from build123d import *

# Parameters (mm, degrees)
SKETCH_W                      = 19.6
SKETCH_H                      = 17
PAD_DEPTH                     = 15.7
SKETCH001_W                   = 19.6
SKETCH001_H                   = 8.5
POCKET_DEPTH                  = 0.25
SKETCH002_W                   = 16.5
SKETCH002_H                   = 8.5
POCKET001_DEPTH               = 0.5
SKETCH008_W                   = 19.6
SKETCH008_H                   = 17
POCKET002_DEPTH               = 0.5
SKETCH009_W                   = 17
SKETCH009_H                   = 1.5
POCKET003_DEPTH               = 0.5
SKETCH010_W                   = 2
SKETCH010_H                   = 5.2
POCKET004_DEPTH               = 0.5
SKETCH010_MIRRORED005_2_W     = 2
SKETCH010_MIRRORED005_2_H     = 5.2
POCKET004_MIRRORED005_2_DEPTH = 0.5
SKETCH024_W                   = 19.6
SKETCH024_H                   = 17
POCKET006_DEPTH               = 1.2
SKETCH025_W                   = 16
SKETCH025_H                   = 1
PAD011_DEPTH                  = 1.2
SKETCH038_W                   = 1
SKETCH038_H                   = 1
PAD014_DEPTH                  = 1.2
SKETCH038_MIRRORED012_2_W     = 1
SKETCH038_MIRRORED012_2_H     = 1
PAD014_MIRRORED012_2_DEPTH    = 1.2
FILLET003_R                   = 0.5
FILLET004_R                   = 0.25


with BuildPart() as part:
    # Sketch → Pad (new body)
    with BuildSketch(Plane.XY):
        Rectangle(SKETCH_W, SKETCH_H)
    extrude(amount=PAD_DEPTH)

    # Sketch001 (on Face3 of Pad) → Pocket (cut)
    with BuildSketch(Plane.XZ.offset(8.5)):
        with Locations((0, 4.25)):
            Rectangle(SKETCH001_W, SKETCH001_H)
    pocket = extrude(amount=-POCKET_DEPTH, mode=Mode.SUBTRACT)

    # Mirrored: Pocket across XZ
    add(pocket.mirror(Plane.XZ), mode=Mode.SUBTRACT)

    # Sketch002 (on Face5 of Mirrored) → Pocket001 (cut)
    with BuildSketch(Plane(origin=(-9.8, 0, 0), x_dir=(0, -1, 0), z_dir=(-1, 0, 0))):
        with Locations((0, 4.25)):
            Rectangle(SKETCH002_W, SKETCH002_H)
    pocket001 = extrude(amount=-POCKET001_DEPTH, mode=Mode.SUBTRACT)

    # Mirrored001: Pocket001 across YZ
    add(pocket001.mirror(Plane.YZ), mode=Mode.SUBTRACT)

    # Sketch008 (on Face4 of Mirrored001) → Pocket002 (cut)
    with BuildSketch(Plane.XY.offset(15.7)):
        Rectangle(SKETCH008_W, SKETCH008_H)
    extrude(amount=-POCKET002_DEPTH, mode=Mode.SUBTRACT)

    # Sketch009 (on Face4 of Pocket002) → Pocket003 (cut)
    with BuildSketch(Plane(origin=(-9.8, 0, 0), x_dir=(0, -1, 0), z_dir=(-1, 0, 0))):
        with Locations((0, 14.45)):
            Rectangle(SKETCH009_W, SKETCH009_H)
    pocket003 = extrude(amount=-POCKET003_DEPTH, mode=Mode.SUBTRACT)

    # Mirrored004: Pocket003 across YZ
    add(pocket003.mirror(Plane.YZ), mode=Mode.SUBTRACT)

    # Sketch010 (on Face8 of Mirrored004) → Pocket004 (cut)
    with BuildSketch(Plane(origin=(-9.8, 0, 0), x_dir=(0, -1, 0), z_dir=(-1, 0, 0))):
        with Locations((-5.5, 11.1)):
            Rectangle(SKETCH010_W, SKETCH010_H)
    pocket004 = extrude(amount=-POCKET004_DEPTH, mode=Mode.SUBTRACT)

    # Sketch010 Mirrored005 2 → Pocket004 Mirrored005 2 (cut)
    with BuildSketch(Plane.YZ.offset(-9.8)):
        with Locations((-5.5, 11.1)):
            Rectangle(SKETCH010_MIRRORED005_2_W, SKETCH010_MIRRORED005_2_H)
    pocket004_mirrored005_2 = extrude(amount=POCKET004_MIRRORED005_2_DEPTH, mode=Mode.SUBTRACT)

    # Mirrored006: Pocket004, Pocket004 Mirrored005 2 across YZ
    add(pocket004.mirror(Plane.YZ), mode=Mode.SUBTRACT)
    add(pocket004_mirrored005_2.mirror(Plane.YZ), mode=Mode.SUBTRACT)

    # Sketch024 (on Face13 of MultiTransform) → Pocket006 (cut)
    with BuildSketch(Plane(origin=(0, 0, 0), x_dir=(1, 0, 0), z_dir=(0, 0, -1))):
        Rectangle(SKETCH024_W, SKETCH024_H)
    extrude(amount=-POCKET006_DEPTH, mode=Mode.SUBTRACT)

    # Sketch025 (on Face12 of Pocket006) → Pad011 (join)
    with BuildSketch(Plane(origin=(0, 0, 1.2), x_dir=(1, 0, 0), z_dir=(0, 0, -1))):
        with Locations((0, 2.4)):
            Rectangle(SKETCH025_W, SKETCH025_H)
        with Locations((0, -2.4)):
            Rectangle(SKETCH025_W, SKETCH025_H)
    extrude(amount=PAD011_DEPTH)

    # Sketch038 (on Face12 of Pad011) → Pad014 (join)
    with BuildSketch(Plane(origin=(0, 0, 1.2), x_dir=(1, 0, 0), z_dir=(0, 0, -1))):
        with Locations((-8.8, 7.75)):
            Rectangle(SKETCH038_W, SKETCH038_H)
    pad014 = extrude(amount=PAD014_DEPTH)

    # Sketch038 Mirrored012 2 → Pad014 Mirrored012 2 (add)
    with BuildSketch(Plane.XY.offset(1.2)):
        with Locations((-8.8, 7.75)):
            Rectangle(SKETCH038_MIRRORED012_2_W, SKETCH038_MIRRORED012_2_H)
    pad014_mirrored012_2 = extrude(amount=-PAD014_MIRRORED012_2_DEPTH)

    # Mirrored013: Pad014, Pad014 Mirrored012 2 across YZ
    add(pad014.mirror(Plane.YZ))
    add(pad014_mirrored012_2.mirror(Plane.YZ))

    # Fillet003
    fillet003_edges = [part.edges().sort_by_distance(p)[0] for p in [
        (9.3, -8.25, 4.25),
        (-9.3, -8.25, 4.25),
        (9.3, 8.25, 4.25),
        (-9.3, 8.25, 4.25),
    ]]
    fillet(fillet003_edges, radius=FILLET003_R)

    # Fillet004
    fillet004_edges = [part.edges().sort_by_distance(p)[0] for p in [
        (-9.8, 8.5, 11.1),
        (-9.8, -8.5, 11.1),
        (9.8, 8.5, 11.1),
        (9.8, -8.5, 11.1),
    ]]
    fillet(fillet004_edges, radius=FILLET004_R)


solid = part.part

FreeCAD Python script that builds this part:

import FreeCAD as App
import Part
import Sketcher
from FreeCAD import Vector
Q = App.Units.Quantity


def edges_at(feature, points):
    """Names of the edges that pass closest to the given points."""
    edges = feature.Shape.Edges
    near = lambda p: min(range(len(edges)), key=lambda i: edges[i].distToShape(Part.Vertex(*p))[0])
    return sorted({f"Edge{near(p) + 1}" for p in points})

doc = App.newDocument("Part")
params = doc.addObject("Spreadsheet::Sheet", "Params")
for row, (alias, value) in enumerate([
    ("sketch1_height", "17 mm"),
    ("sketch1_width", "19.6 mm"),
    ("pad1_length", "15.7 mm"),
    ("sketch2_width", "19.6 mm"),
    ("sketch2_height", "8.5 mm"),
    ("pocket1_length", "0.25 mm"),
    ("sketch3_width", "16.5 mm"),
    ("sketch3_height", "8.5 mm"),
    ("pocket2_length", "0.5 mm"),
    ("sketch4_height", "17 mm"),
    ("sketch4_width", "19.6 mm"),
    ("pocket3_length", "0.5 mm"),
    ("sketch5_width", "17 mm"),
    ("sketch5_height", "1.5 mm"),
    ("pocket4_length", "0.5 mm"),
    ("sketch6_width", "2 mm"),
    ("sketch6_height", "5.2 mm"),
    ("pocket5_length", "0.5 mm"),
    ("sketch7_width", "2 mm"),
    ("sketch7_height", "5.2 mm"),
    ("pocket6_length", "0.5 mm"),
    ("sketch8_height", "17 mm"),
    ("sketch8_width", "19.6 mm"),
    ("pocket7_length", "1.2 mm"),
    ("sketch9_width", "16 mm"),
    ("sketch9_height", "1 mm"),
    ("pad2_length", "1.2 mm"),
    ("sketch10_width", "1 mm"),
    ("pad3_length", "1.2 mm"),
    ("sketch11_width", "1 mm"),
    ("pad4_length", "1.2 mm"),
    ("fillet_radius", "0.5 mm"),
    ("fillet2_radius", "0.25 mm"),
], start=1):
    params.set(f"A{row}", alias)
    params.set(f"B{row}", "=" + value)
    params.setAlias(f"B{row}", alias)

body = doc.addObject("PartDesign::Body", "Body")

# Sketch on XY plane
sketch1 = body.newObject("Sketcher::SketchObject", "Sketch")
sketch1.AttachmentSupport = (doc.getObject("XY_Plane"), [""])
sketch1.MapMode = "FlatFace"
sketch1.addGeometry([
    Part.LineSegment(Vector(-10, 8, 0), Vector(-10, -8, 0)),
    Part.LineSegment(Vector(-10, -8, 0), Vector(10, -8, 0)),
    Part.LineSegment(Vector(10, -8, 0), Vector(10, 8, 0)),
    Part.LineSegment(Vector(10, 8, 0), Vector(-10, 8, 0)),
], False)
sketch1.addConstraint([
    Sketcher.Constraint("Coincident", 0, 2, 1, 1),
    Sketcher.Constraint("Coincident", 1, 2, 2, 1),
    Sketcher.Constraint("Coincident", 2, 2, 3, 1),
    Sketcher.Constraint("Coincident", 3, 2, 0, 1),
    Sketcher.Constraint("Vertical", 0),
    Sketcher.Constraint("Horizontal", 1),
    Sketcher.Constraint("Vertical", 2),
    Sketcher.Constraint("Horizontal", 3),
    Sketcher.Constraint("Symmetric", 0, 2, 2, 2, -1, 1),
    Sketcher.Constraint("DistanceY", 0, 2, 0, 1, Q("17 mm")),
    Sketcher.Constraint("DistanceX", 1, 1, 1, 2, Q("19.6 mm")),
])
sketch1.setExpression("Constraints[9]", "Params.sketch1_height")
sketch1.setExpression("Constraints[10]", "Params.sketch1_width")
pad1 = body.newObject("PartDesign::Pad", "Pad")
pad1.Profile = sketch1
pad1.setExpression("Length", "Params.pad1_length")

# Sketch on XZ plane
sketch2 = body.newObject("Sketcher::SketchObject", "Sketch001")
sketch2.AttachmentSupport = (doc.getObject("XZ_Plane"), [""])
sketch2.MapMode = "FlatFace"
sketch2.AttachmentOffset = App.Placement(Vector(0, 0, 8.5), App.Rotation())
sketch2.addGeometry([
    Part.LineSegment(Vector(-10, 8, 0), Vector(-10, 0, 0)),
    Part.LineSegment(Vector(-10, 0, 0), Vector(10, 0, 0)),
    Part.LineSegment(Vector(10, 0, 0), Vector(10, 8, 0)),
    Part.LineSegment(Vector(10, 8, 0), Vector(-10, 8, 0)),
], False)
sketch2.addConstraint([
    Sketcher.Constraint("Coincident", 0, 2, 1, 1),
    Sketcher.Constraint("Coincident", 1, 2, 2, 1),
    Sketcher.Constraint("Coincident", 2, 2, 3, 1),
    Sketcher.Constraint("Coincident", 3, 2, 0, 1),
    Sketcher.Constraint("Vertical", 0),
    Sketcher.Constraint("Horizontal", 1),
    Sketcher.Constraint("Vertical", 2),
    Sketcher.Constraint("Horizontal", 3),
    Sketcher.Constraint("Symmetric", 0, 2, 1, 2, -1, 1),
    Sketcher.Constraint("DistanceX", 1, 1, 1, 2, Q("19.6 mm")),
    Sketcher.Constraint("DistanceY", 0, 2, 0, 1, Q("8.5 mm")),
])
sketch2.setExpression("Constraints[9]", "Params.sketch2_width")
sketch2.setExpression("Constraints[10]", "Params.sketch2_height")
pocket1 = body.newObject("PartDesign::Pocket", "Pocket")
pocket1.Profile = sketch2
pocket1.setExpression("Length", "Params.pocket1_length")
doc.recompute()

mirrored = body.newObject("PartDesign::Mirrored", "Mirrored")
mirrored.Originals = [pocket1]
mirrored.MirrorPlane = (doc.getObject("XZ_Plane"), [""])
body.Tip = mirrored

# Sketch on YZ plane
sketch3 = body.newObject("Sketcher::SketchObject", "Sketch002")
sketch3.AttachmentSupport = (doc.getObject("YZ_Plane"), [""])
sketch3.MapMode = "FlatFace"
sketch3.AttachmentOffset = App.Placement(Vector(0, 0, -9.8), App.Rotation())
sketch3.addGeometry([
    Part.LineSegment(Vector(8, 8, 0), Vector(8, 0, 0)),
    Part.LineSegment(Vector(8, 0, 0), Vector(-8, 0, 0)),
    Part.LineSegment(Vector(-8, 0, 0), Vector(-8, 8, 0)),
    Part.LineSegment(Vector(-8, 8, 0), Vector(8, 8, 0)),
], False)
sketch3.addConstraint([
    Sketcher.Constraint("Coincident", 0, 2, 1, 1),
    Sketcher.Constraint("Coincident", 1, 2, 2, 1),
    Sketcher.Constraint("Coincident", 2, 2, 3, 1),
    Sketcher.Constraint("Coincident", 3, 2, 0, 1),
    Sketcher.Constraint("Vertical", 0),
    Sketcher.Constraint("Horizontal", 1),
    Sketcher.Constraint("Vertical", 2),
    Sketcher.Constraint("Horizontal", 3),
    Sketcher.Constraint("Symmetric", 0, 2, 1, 2, -1, 1),
    Sketcher.Constraint("DistanceX", 1, 2, 1, 1, Q("16.5 mm")),
    Sketcher.Constraint("DistanceY", 0, 2, 0, 1, Q("8.5 mm")),
])
sketch3.setExpression("Constraints[9]", "Params.sketch3_width")
sketch3.setExpression("Constraints[10]", "Params.sketch3_height")
pocket2 = body.newObject("PartDesign::Pocket", "Pocket001")
pocket2.Profile = sketch3
pocket2.setExpression("Length", "Params.pocket2_length")
pocket2.Reversed = True
doc.recompute()

mirrored2 = body.newObject("PartDesign::Mirrored", "Mirrored001")
mirrored2.Originals = [pocket2]
mirrored2.MirrorPlane = (doc.getObject("YZ_Plane"), [""])
body.Tip = mirrored2

# Sketch on XY plane
sketch4 = body.newObject("Sketcher::SketchObject", "Sketch003")
sketch4.AttachmentSupport = (doc.getObject("XY_Plane"), [""])
sketch4.MapMode = "FlatFace"
sketch4.AttachmentOffset = App.Placement(Vector(0, 0, 15.7), App.Rotation())
sketch4.addGeometry([
    Part.LineSegment(Vector(-10, 8, 0), Vector(-10, -8, 0)),
    Part.LineSegment(Vector(-10, -8, 0), Vector(10, -8, 0)),
    Part.LineSegment(Vector(10, -8, 0), Vector(10, 8, 0)),
    Part.LineSegment(Vector(10, 8, 0), Vector(-10, 8, 0)),
], False)
sketch4.addConstraint([
    Sketcher.Constraint("Coincident", 0, 2, 1, 1),
    Sketcher.Constraint("Coincident", 1, 2, 2, 1),
    Sketcher.Constraint("Coincident", 2, 2, 3, 1),
    Sketcher.Constraint("Coincident", 3, 2, 0, 1),
    Sketcher.Constraint("Vertical", 0),
    Sketcher.Constraint("Horizontal", 1),
    Sketcher.Constraint("Vertical", 2),
    Sketcher.Constraint("Horizontal", 3),
    Sketcher.Constraint("Symmetric", 0, 2, 2, 2, -1, 1),
    Sketcher.Constraint("DistanceY", 0, 2, 0, 1, Q("17 mm")),
    Sketcher.Constraint("DistanceX", 1, 1, 1, 2, Q("19.6 mm")),
])
sketch4.setExpression("Constraints[9]", "Params.sketch4_height")
sketch4.setExpression("Constraints[10]", "Params.sketch4_width")
pocket3 = body.newObject("PartDesign::Pocket", "Pocket002")
pocket3.Profile = sketch4
pocket3.setExpression("Length", "Params.pocket3_length")

# Sketch on YZ plane
sketch5 = body.newObject("Sketcher::SketchObject", "Sketch004")
sketch5.AttachmentSupport = (doc.getObject("YZ_Plane"), [""])
sketch5.MapMode = "FlatFace"
sketch5.AttachmentOffset = App.Placement(Vector(0, 0, -9.8), App.Rotation())
sketch5.addGeometry([
    Part.LineSegment(Vector(8.5, 15.2, 0), Vector(8.5, 13.7, 0)),
    Part.LineSegment(Vector(8.5, 13.7, 0), Vector(-8.5, 13.7, 0)),
    Part.LineSegment(Vector(-8.5, 13.7, 0), Vector(-8.5, 15.2, 0)),
    Part.LineSegment(Vector(-8.5, 15.2, 0), Vector(8.5, 15.2, 0)),
], False)
sketch5.addConstraint([
    Sketcher.Constraint("Coincident", 0, 2, 1, 1),
    Sketcher.Constraint("Coincident", 1, 2, 2, 1),
    Sketcher.Constraint("Coincident", 2, 2, 3, 1),
    Sketcher.Constraint("Coincident", 3, 2, 0, 1),
    Sketcher.Constraint("Vertical", 0),
    Sketcher.Constraint("Horizontal", 1),
    Sketcher.Constraint("Vertical", 2),
    Sketcher.Constraint("Horizontal", 3),
    Sketcher.Constraint("DistanceX", 1, 2, 1, 1, Q("17 mm")),
    Sketcher.Constraint("DistanceY", 0, 2, 0, 1, Q("1.5 mm")),
    Sketcher.Constraint("DistanceX", -1, 1, 0, 2, Q("8.5 mm")),
    Sketcher.Constraint("DistanceY", -1, 1, 0, 2, Q("13.7 mm")),
])
sketch5.setExpression("Constraints[8]", "Params.sketch5_width")
sketch5.setExpression("Constraints[9]", "Params.sketch5_height")
pocket4 = body.newObject("PartDesign::Pocket", "Pocket003")
pocket4.Profile = sketch5
pocket4.setExpression("Length", "Params.pocket4_length")
pocket4.Reversed = True
doc.recompute()

mirrored3 = body.newObject("PartDesign::Mirrored", "Mirrored002")
mirrored3.Originals = [pocket4]
mirrored3.MirrorPlane = (doc.getObject("YZ_Plane"), [""])
body.Tip = mirrored3

# Sketch on YZ plane
sketch6 = body.newObject("Sketcher::SketchObject", "Sketch005")
sketch6.AttachmentSupport = (doc.getObject("YZ_Plane"), [""])
sketch6.MapMode = "FlatFace"
sketch6.AttachmentOffset = App.Placement(Vector(0, 0, -9.8), App.Rotation())
sketch6.addGeometry([
    Part.LineSegment(Vector(6.5, 13.7, 0), Vector(6.5, 8.5, 0)),
    Part.LineSegment(Vector(6.5, 8.5, 0), Vector(4.5, 8.5, 0)),
    Part.LineSegment(Vector(4.5, 8.5, 0), Vector(4.5, 13.7, 0)),
    Part.LineSegment(Vector(4.5, 13.7, 0), Vector(6.5, 13.7, 0)),
], False)
sketch6.addConstraint([
    Sketcher.Constraint("Coincident", 0, 2, 1, 1),
    Sketcher.Constraint("Coincident", 1, 2, 2, 1),
    Sketcher.Constraint("Coincident", 2, 2, 3, 1),
    Sketcher.Constraint("Coincident", 3, 2, 0, 1),
    Sketcher.Constraint("Vertical", 0),
    Sketcher.Constraint("Horizontal", 1),
    Sketcher.Constraint("Vertical", 2),
    Sketcher.Constraint("Horizontal", 3),
    Sketcher.Constraint("DistanceX", 1, 2, 1, 1, Q("2 mm")),
    Sketcher.Constraint("DistanceY", 0, 2, 0, 1, Q("5.2 mm")),
    Sketcher.Constraint("DistanceX", -1, 1, 0, 2, Q("6.5 mm")),
    Sketcher.Constraint("DistanceY", -1, 1, 0, 2, Q("8.5 mm")),
])
sketch6.setExpression("Constraints[8]", "Params.sketch6_width")
sketch6.setExpression("Constraints[9]", "Params.sketch6_height")
pocket5 = body.newObject("PartDesign::Pocket", "Pocket004")
pocket5.Profile = sketch6
pocket5.setExpression("Length", "Params.pocket5_length")
pocket5.Reversed = True

# Sketch on YZ plane
sketch7 = body.newObject("Sketcher::SketchObject", "Sketch006")
sketch7.AttachmentSupport = (doc.getObject("YZ_Plane"), [""])
sketch7.MapMode = "FlatFace"
sketch7.AttachmentOffset = App.Placement(Vector(0, 0, -9.8), App.Rotation())
sketch7.addGeometry([
    Part.LineSegment(Vector(-6.5, 13.7, 0), Vector(-6.5, 8.5, 0)),
    Part.LineSegment(Vector(-6.5, 8.5, 0), Vector(-4.5, 8.5, 0)),
    Part.LineSegment(Vector(-4.5, 8.5, 0), Vector(-4.5, 13.7, 0)),
    Part.LineSegment(Vector(-4.5, 13.7, 0), Vector(-6.5, 13.7, 0)),
], False)
sketch7.addConstraint([
    Sketcher.Constraint("Coincident", 0, 2, 1, 1),
    Sketcher.Constraint("Coincident", 1, 2, 2, 1),
    Sketcher.Constraint("Coincident", 2, 2, 3, 1),
    Sketcher.Constraint("Coincident", 3, 2, 0, 1),
    Sketcher.Constraint("Vertical", 0),
    Sketcher.Constraint("Horizontal", 1),
    Sketcher.Constraint("Vertical", 2),
    Sketcher.Constraint("Horizontal", 3),
    Sketcher.Constraint("DistanceX", 1, 1, 1, 2, Q("2 mm")),
    Sketcher.Constraint("DistanceY", 0, 2, 0, 1, Q("5.2 mm")),
    Sketcher.Constraint("DistanceX", 0, 2, -1, 1, Q("6.5 mm")),
    Sketcher.Constraint("DistanceY", -1, 1, 0, 2, Q("8.5 mm")),
])
sketch7.setExpression("Constraints[8]", "Params.sketch7_width")
sketch7.setExpression("Constraints[9]", "Params.sketch7_height")
pocket6 = body.newObject("PartDesign::Pocket", "Pocket005")
pocket6.Profile = sketch7
pocket6.setExpression("Length", "Params.pocket6_length")
pocket6.Reversed = True
doc.recompute()

mirrored4 = body.newObject("PartDesign::Mirrored", "Mirrored003")
mirrored4.Originals = [pocket5, pocket6]
mirrored4.MirrorPlane = (doc.getObject("YZ_Plane"), [""])
body.Tip = mirrored4

# Sketch on XY plane
sketch8 = body.newObject("Sketcher::SketchObject", "Sketch007")
sketch8.AttachmentSupport = (doc.getObject("XY_Plane"), [""])
sketch8.MapMode = "FlatFace"
sketch8.addGeometry([
    Part.LineSegment(Vector(-10, -8, 0), Vector(-10, 8, 0)),
    Part.LineSegment(Vector(-10, 8, 0), Vector(10, 8, 0)),
    Part.LineSegment(Vector(10, 8, 0), Vector(10, -8, 0)),
    Part.LineSegment(Vector(10, -8, 0), Vector(-10, -8, 0)),
], False)
sketch8.addConstraint([
    Sketcher.Constraint("Coincident", 0, 2, 1, 1),
    Sketcher.Constraint("Coincident", 1, 2, 2, 1),
    Sketcher.Constraint("Coincident", 2, 2, 3, 1),
    Sketcher.Constraint("Coincident", 3, 2, 0, 1),
    Sketcher.Constraint("Vertical", 0),
    Sketcher.Constraint("Horizontal", 1),
    Sketcher.Constraint("Vertical", 2),
    Sketcher.Constraint("Horizontal", 3),
    Sketcher.Constraint("Symmetric", 0, 2, 2, 2, -1, 1),
    Sketcher.Constraint("DistanceY", 0, 1, 0, 2, Q("17 mm")),
    Sketcher.Constraint("DistanceX", 1, 1, 1, 2, Q("19.6 mm")),
])
sketch8.setExpression("Constraints[9]", "Params.sketch8_height")
sketch8.setExpression("Constraints[10]", "Params.sketch8_width")
pocket7 = body.newObject("PartDesign::Pocket", "Pocket006")
pocket7.Profile = sketch8
pocket7.setExpression("Length", "Params.pocket7_length")
pocket7.Reversed = True

# Sketch on XY plane
sketch9 = body.newObject("Sketcher::SketchObject", "Sketch008")
sketch9.AttachmentSupport = (doc.getObject("XY_Plane"), [""])
sketch9.MapMode = "FlatFace"
sketch9.AttachmentOffset = App.Placement(Vector(0, 0, 1.2), App.Rotation())
sketch9.addGeometry([
    Part.LineSegment(Vector(-8, -2.9, 0), Vector(-8, -1.9, 0)),  # 0
    Part.LineSegment(Vector(-8, -1.9, 0), Vector(8, -1.9, 0)),  # 1
    Part.LineSegment(Vector(8, -1.9, 0), Vector(8, -2.9, 0)),  # 2
    Part.LineSegment(Vector(8, -2.9, 0), Vector(-8, -2.9, 0)),  # 3
    Part.LineSegment(Vector(-8, 1.9, 0), Vector(-8, 2.9, 0)),  # 4
    Part.LineSegment(Vector(-8, 2.9, 0), Vector(8, 2.9, 0)),  # 5
    Part.LineSegment(Vector(8, 2.9, 0), Vector(8, 1.9, 0)),  # 6
    Part.LineSegment(Vector(8, 1.9, 0), Vector(-8, 1.9, 0)),  # 7
], False)
sketch9.addConstraint([
    Sketcher.Constraint("Coincident", 0, 2, 1, 1),
    Sketcher.Constraint("Coincident", 1, 2, 2, 1),
    Sketcher.Constraint("Coincident", 2, 2, 3, 1),
    Sketcher.Constraint("Coincident", 3, 2, 0, 1),
    Sketcher.Constraint("Coincident", 4, 2, 5, 1),
    Sketcher.Constraint("Coincident", 5, 2, 6, 1),
    Sketcher.Constraint("Coincident", 6, 2, 7, 1),
    Sketcher.Constraint("Coincident", 7, 2, 4, 1),
    Sketcher.Constraint("Vertical", 0),
    Sketcher.Constraint("Horizontal", 1),
    Sketcher.Constraint("Vertical", 2),
    Sketcher.Constraint("Horizontal", 3),
    Sketcher.Constraint("Vertical", 4),
    Sketcher.Constraint("Horizontal", 5),
    Sketcher.Constraint("Vertical", 6),
    Sketcher.Constraint("Horizontal", 7),
    Sketcher.Constraint("Symmetric", 2, 2, 4, 2, -1, 1),
    Sketcher.Constraint("Symmetric", 0, 2, 6, 2, -1, 1),
    Sketcher.Constraint("Vertical", 3, 2, 4, 2),
    Sketcher.Constraint("DistanceX", 1, 1, 1, 2, Q("16 mm")),
    Sketcher.Constraint("DistanceY", 0, 1, 0, 2, Q("1 mm")),
    Sketcher.Constraint("DistanceY", 0, 2, -1, 1, Q("1.9 mm")),
])
sketch9.setExpression("Constraints[19]", "Params.sketch9_width")
sketch9.setExpression("Constraints[20]", "Params.sketch9_height")
pad2 = body.newObject("PartDesign::Pad", "Pad001")
pad2.Profile = sketch9
pad2.setExpression("Length", "Params.pad2_length")
pad2.Reversed = True

# Sketch on XY plane
sketch10 = body.newObject("Sketcher::SketchObject", "Sketch009")
sketch10.AttachmentSupport = (doc.getObject("XY_Plane"), [""])
sketch10.MapMode = "FlatFace"
sketch10.AttachmentOffset = App.Placement(Vector(0, 0, 1.2), App.Rotation())
sketch10.addGeometry([
    Part.LineSegment(Vector(-9.3, -8.2, 0), Vector(-9.3, -7.2, 0)),
    Part.LineSegment(Vector(-9.3, -7.2, 0), Vector(-8.3, -7.2, 0)),
    Part.LineSegment(Vector(-8.3, -7.2, 0), Vector(-8.3, -8.2, 0)),
    Part.LineSegment(Vector(-8.3, -8.2, 0), Vector(-9.3, -8.2, 0)),
], False)
sketch10.addConstraint([
    Sketcher.Constraint("Coincident", 0, 2, 1, 1),
    Sketcher.Constraint("Coincident", 1, 2, 2, 1),
    Sketcher.Constraint("Coincident", 2, 2, 3, 1),
    Sketcher.Constraint("Coincident", 3, 2, 0, 1),
    Sketcher.Constraint("Vertical", 0),
    Sketcher.Constraint("Horizontal", 1),
    Sketcher.Constraint("Vertical", 2),
    Sketcher.Constraint("Horizontal", 3),
    Sketcher.Constraint("Equal", 3, 0),
    Sketcher.Constraint("DistanceX", 1, 1, 1, 2, Q("1 mm")),
    Sketcher.Constraint("DistanceX", 0, 2, -1, 1, Q("9.3 mm")),
    Sketcher.Constraint("DistanceY", 0, 2, -1, 1, Q("7.25 mm")),
])
sketch10.setExpression("Constraints[9]", "Params.sketch10_width")
pad3 = body.newObject("PartDesign::Pad", "Pad002")
pad3.Profile = sketch10
pad3.setExpression("Length", "Params.pad3_length")
pad3.Reversed = True

# Sketch on XY plane
sketch11 = body.newObject("Sketcher::SketchObject", "Sketch010")
sketch11.AttachmentSupport = (doc.getObject("XY_Plane"), [""])
sketch11.MapMode = "FlatFace"
sketch11.AttachmentOffset = App.Placement(Vector(0, 0, 1.2), App.Rotation())
sketch11.addGeometry([
    Part.LineSegment(Vector(-9.3, 8.2, 0), Vector(-9.3, 7.2, 0)),
    Part.LineSegment(Vector(-9.3, 7.2, 0), Vector(-8.3, 7.2, 0)),
    Part.LineSegment(Vector(-8.3, 7.2, 0), Vector(-8.3, 8.2, 0)),
    Part.LineSegment(Vector(-8.3, 8.2, 0), Vector(-9.3, 8.2, 0)),
], False)
sketch11.addConstraint([
    Sketcher.Constraint("Coincident", 0, 2, 1, 1),
    Sketcher.Constraint("Coincident", 1, 2, 2, 1),
    Sketcher.Constraint("Coincident", 2, 2, 3, 1),
    Sketcher.Constraint("Coincident", 3, 2, 0, 1),
    Sketcher.Constraint("Vertical", 0),
    Sketcher.Constraint("Horizontal", 1),
    Sketcher.Constraint("Vertical", 2),
    Sketcher.Constraint("Horizontal", 3),
    Sketcher.Constraint("Equal", 3, 0),
    Sketcher.Constraint("DistanceX", 1, 1, 1, 2, Q("1 mm")),
    Sketcher.Constraint("DistanceX", 0, 2, -1, 1, Q("9.3 mm")),
    Sketcher.Constraint("DistanceY", -1, 1, 0, 2, Q("7.25 mm")),
])
sketch11.setExpression("Constraints[9]", "Params.sketch11_width")
pad4 = body.newObject("PartDesign::Pad", "Pad003")
pad4.Profile = sketch11
pad4.setExpression("Length", "Params.pad4_length")
pad4.Reversed = True
doc.recompute()

mirrored5 = body.newObject("PartDesign::Mirrored", "Mirrored004")
mirrored5.Originals = [pad3, pad4]
mirrored5.MirrorPlane = (doc.getObject("YZ_Plane"), [""])
body.Tip = mirrored5
doc.recompute()

fillet = body.newObject("PartDesign::Fillet", "Fillet")
fillet.Base = (mirrored5, edges_at(mirrored5, [
    (9.3, -8.25, 4.25),
    (-9.3, -8.25, 4.25),
    (9.3, 8.25, 4.25),
    (-9.3, 8.25, 4.25),
]))
fillet.setExpression("Radius", "Params.fillet_radius")
doc.recompute()

fillet2 = body.newObject("PartDesign::Fillet", "Fillet001")
fillet2.Base = (fillet, edges_at(fillet, [
    (-9.8, 8.5, 11.1),
    (-9.8, -8.5, 11.1),
    (9.8, 8.5, 11.1),
    (9.8, -8.5, 11.1),
]))
fillet2.setExpression("Radius", "Params.fillet2_radius")

doc.recompute()
